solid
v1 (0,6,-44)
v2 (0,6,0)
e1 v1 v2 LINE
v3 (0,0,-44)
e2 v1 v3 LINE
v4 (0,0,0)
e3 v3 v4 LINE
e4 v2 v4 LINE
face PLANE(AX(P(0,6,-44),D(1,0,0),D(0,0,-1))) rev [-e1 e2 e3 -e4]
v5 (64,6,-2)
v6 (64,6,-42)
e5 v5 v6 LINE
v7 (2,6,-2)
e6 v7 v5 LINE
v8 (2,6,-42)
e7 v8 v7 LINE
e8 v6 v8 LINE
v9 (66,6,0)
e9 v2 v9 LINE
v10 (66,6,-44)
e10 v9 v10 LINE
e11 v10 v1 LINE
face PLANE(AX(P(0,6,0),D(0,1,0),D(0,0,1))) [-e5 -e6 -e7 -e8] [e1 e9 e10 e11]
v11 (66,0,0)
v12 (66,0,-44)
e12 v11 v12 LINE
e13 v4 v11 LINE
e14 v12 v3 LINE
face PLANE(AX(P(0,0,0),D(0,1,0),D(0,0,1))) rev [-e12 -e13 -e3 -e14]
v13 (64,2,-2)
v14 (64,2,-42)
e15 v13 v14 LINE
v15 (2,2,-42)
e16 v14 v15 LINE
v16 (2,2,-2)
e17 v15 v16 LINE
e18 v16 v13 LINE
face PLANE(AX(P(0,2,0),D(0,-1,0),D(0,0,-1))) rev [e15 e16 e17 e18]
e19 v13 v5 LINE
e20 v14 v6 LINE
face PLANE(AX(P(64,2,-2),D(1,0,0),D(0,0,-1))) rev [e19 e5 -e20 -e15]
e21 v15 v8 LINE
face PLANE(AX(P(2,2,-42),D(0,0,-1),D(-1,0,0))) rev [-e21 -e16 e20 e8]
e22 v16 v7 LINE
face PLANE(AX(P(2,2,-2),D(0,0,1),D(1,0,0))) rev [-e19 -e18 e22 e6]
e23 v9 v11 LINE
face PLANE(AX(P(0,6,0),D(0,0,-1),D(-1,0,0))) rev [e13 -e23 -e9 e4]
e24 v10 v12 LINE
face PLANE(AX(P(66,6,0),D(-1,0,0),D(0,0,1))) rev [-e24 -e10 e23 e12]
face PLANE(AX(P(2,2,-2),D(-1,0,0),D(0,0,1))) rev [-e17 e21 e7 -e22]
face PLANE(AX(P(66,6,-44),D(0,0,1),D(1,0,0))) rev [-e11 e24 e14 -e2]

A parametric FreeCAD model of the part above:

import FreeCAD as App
import Part
import Sketcher

V = App.Vector


def add_polygon(sketch, points):
    """Adds a closed chain of lines whose ends are joined by coincident constraints."""
    first, n = sketch.GeometryCount, len(points)
    for a, b in zip(points, points[1:] + points[:1]):
        sketch.addGeometry(Part.LineSegment(App.Vector(*a, 0), App.Vector(*b, 0)), False)
    for i in range(n):
        sketch.addConstraint(Sketcher.Constraint("Coincident", first + i, 2, first + (i + 1) % n, 1))

doc = App.newDocument("Part")
body = doc.addObject("PartDesign::Body", "Body")

# Sketch on XZ plane
sketch1 = doc.addObject("Sketcher::SketchObject", "Sketch")
body.addObject(sketch1)
sketch1.AttachmentSupport = (doc.XZ_Plane, [""])
sketch1.MapMode = "FlatFace"
add_polygon(sketch1, [(0, -44), (0, 0), (66, 0), (66, -44)])  # lines 0-3
sketch1.addConstraint([
    Sketcher.Constraint("Vertical", 0),
    Sketcher.Constraint("Horizontal", 1),
    Sketcher.Constraint("Vertical", 2),
    Sketcher.Constraint("Horizontal", 3),
    Sketcher.Constraint("Coincident", 0, 2, -1, 1),
    Sketcher.Constraint("DistanceX", 1, 1, 1, 2, 66.0),
    Sketcher.Constraint("DistanceY", 0, 1, 0, 2, 44.0),
])
pad1 = doc.addObject("PartDesign::Pad", "Pad")
body.addObject(pad1)
pad1.Profile = sketch1
pad1.Length = 6
pad1.Reversed = True

# Sketch on XZ plane
sketch2 = doc.addObject("Sketcher::SketchObject", "Sketch001")
body.addObject(sketch2)
sketch2.AttachmentSupport = (doc.XZ_Plane, [""])
sketch2.MapMode = "FlatFace"
sketch2.AttachmentOffset = App.Placement(V(0, 0, -6), App.Rotation())
add_polygon(sketch2, [(2, -42), (2, -2), (64, -2), (64, -42)])  # lines 0-3
sketch2.addConstraint([
    Sketcher.Constraint("Vertical", 0),
    Sketcher.Constraint("Horizontal", 1),
    Sketcher.Constraint("Vertical", 2),
    Sketcher.Constraint("Horizontal", 3),
    Sketcher.Constraint("DistanceX", 1, 1, 1, 2, 62.0),
    Sketcher.Constraint("DistanceY", 0, 1, 0, 2, 40.0),
    Sketcher.Constraint("DistanceX", -1, 1, 0, 2, 2.0),
    Sketcher.Constraint("DistanceY", 0, 2, -1, 1, 2.0),
])
pocket1 = doc.addObject("PartDesign::Pocket", "Pocket")
body.addObject(pocket1)
pocket1.Profile = sketch2
pocket1.Length = 4
pocket1.Reversed = True

doc.recompute()
